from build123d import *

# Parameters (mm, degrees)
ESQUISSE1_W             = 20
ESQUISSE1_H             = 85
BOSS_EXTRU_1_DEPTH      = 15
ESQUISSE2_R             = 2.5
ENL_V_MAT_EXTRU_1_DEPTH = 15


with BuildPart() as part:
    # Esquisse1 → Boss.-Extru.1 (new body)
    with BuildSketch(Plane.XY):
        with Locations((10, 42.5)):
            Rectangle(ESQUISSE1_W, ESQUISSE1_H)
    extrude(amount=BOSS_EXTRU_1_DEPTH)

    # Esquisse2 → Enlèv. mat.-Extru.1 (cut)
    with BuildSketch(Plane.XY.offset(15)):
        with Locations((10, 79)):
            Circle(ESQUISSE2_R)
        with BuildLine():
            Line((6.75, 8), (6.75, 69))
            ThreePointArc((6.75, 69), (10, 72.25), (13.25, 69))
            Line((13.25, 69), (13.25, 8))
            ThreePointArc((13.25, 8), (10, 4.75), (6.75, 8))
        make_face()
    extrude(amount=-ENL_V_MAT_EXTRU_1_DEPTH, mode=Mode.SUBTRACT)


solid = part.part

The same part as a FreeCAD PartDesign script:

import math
import FreeCAD as App
import Part
import Sketcher
from FreeCAD import Vector
Q = App.Units.Quantity


def add_polygon(sketch, points):
    """Adds a closed chain of lines whose ends are joined by coincident constraints."""
    first, n = sketch.GeometryCount, len(points)
    for a, b in zip(points, points[1:] + points[:1]):
        sketch.addGeometry(Part.LineSegment(App.Vector(*a, 0), App.Vector(*b, 0)), False)
    for i in range(n):
        sketch.addConstraint(Sketcher.Constraint("Coincident", first + i, 2, first + (i + 1) % n, 1))

doc = App.newDocument("Part")
params = doc.addObject("Spreadsheet::Sheet", "Params")
for row, (alias, value) in enumerate([
    ("sketch1_width", "20 mm"),
    ("sketch1_height", "85 mm"),
    ("pad1_length", "15 mm"),
    ("sketch2_diameter", "5 mm"),
    ("sketch2_height", "61 mm"),
    ("sketch2_radius", "3.25 mm"),
    ("pocket1_length", "15 mm"),
], start=1):
    params.set(f"A{row}", alias)
    params.set(f"B{row}", "=" + value)
    params.setAlias(f"B{row}", alias)

body = doc.addObject("PartDesign::Body", "Body")

# Sketch on XY plane
sketch1 = body.newObject("Sketcher::SketchObject", "Sketch")
sketch1.AttachmentSupport = (doc.getObject("XY_Plane"), [""])
sketch1.MapMode = "FlatFace"
add_polygon(sketch1, [(0, 85), (0, 0), (20, 0), (20, 85)])  # lines 0-3
sketch1.addConstraint(Sketcher.Constraint("Vertical", 0))
sketch1.addConstraint(Sketcher.Constraint("Horizontal", 1))
sketch1.addConstraint(Sketcher.Constraint("Vertical", 2))
sketch1.addConstraint(Sketcher.Constraint("Horizontal", 3))
sketch1.addConstraint(Sketcher.Constraint("Coincident", 0, 2, -1, 1))
sketch1.addConstraint(Sketcher.Constraint("DistanceX", 1, 1, 1, 2, Q("20 mm")))
sketch1.addConstraint(Sketcher.Constraint("DistanceY", 0, 2, 0, 1, Q("85 mm")))
sketch1.setExpression("Constraints[9]", "Params.sketch1_width")
sketch1.setExpression("Constraints[10]", "Params.sketch1_height")
pad1 = body.newObject("PartDesign::Pad", "Pad")
pad1.Profile = sketch1
pad1.setExpression("Length", "Params.pad1_length")

# Sketch on XY plane
sketch2 = body.newObject("Sketcher::SketchObject", "Sketch001")
sketch2.AttachmentSupport = (doc.getObject("XY_Plane"), [""])
sketch2.MapMode = "FlatFace"
sketch2.AttachmentOffset = App.Placement(Vector(0, 0, 15), App.Rotation())
sketch2.addGeometry(Part.Circle(Vector(10, 79, 0), Vector(0, 0, 1), 2.5), False)
sketch2.addGeometry(Part.LineSegment(Vector(6.75, 69, 0), Vector(6.75, 8, 0)), False)
sketch2.addGeometry(Part.ArcOfCircle(Part.Circle(Vector(10, 8, 0), Vector(0, 0, 1), 3.25), math.radians(180), math.radians(360)), False)
sketch2.addGeometry(Part.LineSegment(Vector(13.25, 8, 0), Vector(13.25, 69, 0)), False)
sketch2.addGeometry(Part.ArcOfCircle(Part.Circle(Vector(10, 69, 0), Vector(0, 0, 1), 3.25), math.radians(0), math.radians(180)), False)
sketch2.addConstraint(Sketcher.Constraint("Tangent", 1, 2, 2, 1))
sketch2.addConstraint(Sketcher.Constraint("Tangent", 2, 2, 3, 1))
sketch2.addConstraint(Sketcher.Constraint("Tangent", 3, 2, 4, 1))
sketch2.addConstraint(Sketcher.Constraint("Tangent", 4, 2, 1, 1))
sketch2.addConstraint(Sketcher.Constraint("Vertical", 1))
sketch2.addConstraint(Sketcher.Constraint("Vertical", 3))
sketch2.addConstraint(Sketcher.Constraint("Vertical", 0, 3, 2, 3))
sketch2.addConstraint(Sketcher.Constraint("Diameter", 0, Q("5 mm")))
sketch2.addConstraint(Sketcher.Constraint("DistanceY", 1, 2, 1, 1, Q("61 mm")))
sketch2.addConstraint(Sketcher.Constraint("Radius", 2, Q("3.25 mm")))
sketch2.addConstraint(Sketcher.Constraint("DistanceX", -1, 1, 0, 3, Q("10 mm")))
sketch2.addConstraint(Sketcher.Constraint("DistanceY", -1, 1, 0, 3, Q("79 mm")))
sketch2.addConstraint(Sketcher.Constraint("DistanceY", -1, 1, 2, 3, Q("8 mm")))
sketch2.setExpression("Constraints[7]", "Params.sketch2_diameter")
sketch2.setExpression("Constraints[8]", "Params.sketch2_height")
sketch2.setExpression("Constraints[9]", "Params.sketch2_radius")
pocket1 = body.newObject("PartDesign::Pocket", "Pocket")
pocket1.Profile = sketch2
pocket1.setExpression("Length", "Params.pocket1_length")

doc.recompute()
